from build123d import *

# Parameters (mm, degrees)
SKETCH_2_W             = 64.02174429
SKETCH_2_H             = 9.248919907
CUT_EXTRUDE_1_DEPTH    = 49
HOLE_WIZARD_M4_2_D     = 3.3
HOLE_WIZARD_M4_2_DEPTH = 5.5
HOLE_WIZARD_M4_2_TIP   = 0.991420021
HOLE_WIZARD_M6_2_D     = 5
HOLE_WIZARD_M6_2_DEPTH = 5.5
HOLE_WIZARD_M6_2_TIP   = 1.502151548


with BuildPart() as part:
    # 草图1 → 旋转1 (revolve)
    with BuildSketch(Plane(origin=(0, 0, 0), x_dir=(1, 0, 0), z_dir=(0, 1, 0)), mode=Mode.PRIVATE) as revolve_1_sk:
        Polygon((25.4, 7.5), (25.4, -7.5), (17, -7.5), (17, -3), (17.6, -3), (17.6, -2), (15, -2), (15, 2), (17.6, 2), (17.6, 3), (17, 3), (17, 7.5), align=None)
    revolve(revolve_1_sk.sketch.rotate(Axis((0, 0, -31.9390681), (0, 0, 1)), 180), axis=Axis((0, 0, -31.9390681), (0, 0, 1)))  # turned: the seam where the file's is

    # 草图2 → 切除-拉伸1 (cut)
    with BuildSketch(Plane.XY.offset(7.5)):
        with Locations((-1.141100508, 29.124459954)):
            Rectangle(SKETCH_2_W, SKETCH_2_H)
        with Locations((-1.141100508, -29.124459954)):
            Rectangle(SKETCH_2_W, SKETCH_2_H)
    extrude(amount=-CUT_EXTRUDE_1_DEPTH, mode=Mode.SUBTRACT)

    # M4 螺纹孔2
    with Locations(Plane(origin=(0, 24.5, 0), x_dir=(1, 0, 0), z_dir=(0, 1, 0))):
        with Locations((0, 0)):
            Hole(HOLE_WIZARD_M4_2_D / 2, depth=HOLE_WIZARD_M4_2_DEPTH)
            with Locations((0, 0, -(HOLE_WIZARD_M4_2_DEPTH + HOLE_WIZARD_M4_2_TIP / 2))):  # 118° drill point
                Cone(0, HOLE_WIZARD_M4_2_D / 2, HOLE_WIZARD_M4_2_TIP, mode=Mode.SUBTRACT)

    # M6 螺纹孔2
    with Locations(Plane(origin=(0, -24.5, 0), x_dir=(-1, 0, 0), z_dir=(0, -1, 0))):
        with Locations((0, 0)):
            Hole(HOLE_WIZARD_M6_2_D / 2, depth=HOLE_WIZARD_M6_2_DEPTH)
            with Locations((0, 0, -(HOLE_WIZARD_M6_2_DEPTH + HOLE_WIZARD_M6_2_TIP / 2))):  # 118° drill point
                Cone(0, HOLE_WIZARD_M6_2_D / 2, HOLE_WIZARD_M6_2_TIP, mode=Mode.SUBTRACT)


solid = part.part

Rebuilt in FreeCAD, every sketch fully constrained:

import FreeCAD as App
import Part
import Sketcher

V = App.Vector
Q = App.Units.Quantity


def add_polygon(sketch, points):
    """Adds a closed chain of lines whose ends are joined by coincident constraints."""
    first, n = sketch.GeometryCount, len(points)
    for a, b in zip(points, points[1:] + points[:1]):
        sketch.addGeometry(Part.LineSegment(App.Vector(*a, 0), App.Vector(*b, 0)), False)
    for i in range(n):
        sketch.addConstraint(Sketcher.Constraint("Coincident", first + i, 2, first + (i + 1) % n, 1))

doc = App.newDocument("Part")
params = doc.addObject("Spreadsheet::Sheet", "Params")
for row, (alias, value) in enumerate([
    ("sketch1_height", "15 mm"),
    ("sketch1_height2", "1 mm"),
    ("sketch1_height3", "4 mm"),
    ("sketch1_width", "8.4 mm"),
    ("sketch1_width2", "0.6 mm"),
    ("revolution_angle", "360 deg"),
    ("pocket1_length", "49 mm"),
    ("sketch3_diameter", "3.3 mm"),
    ("hole_diameter", "3.3 mm"),
    ("hole_depth", "5.5 mm"),
    ("sketch4_diameter", "5 mm"),
    ("hole2_diameter", "5 mm"),
    ("hole2_depth", "5.5 mm"),
], start=1):
    params.set(f"A{row}", alias)
    params.set(f"B{row}", "=" + value)
    params.setAlias(f"B{row}", alias)

body = doc.addObject("PartDesign::Body", "Body")

sketch1 = body.newObject("Sketcher::SketchObject", "Sketch")
sketch1.AttachmentSupport = (doc.getObject("XZ_Plane"), [""])
sketch1.MapMode = "FlatFace"
add_polygon(sketch1, [(25.4, 7.5), (25.4, -7.5), (17, -7.5), (17, -3), (17.6, -3), (17.6, -2), (15, -2), (15, 2), (17.6, 2), (17.6, 3), (17, 3), (17, 7.5)])
sketch1.addConstraint(Sketcher.Constraint("Vertical", 0))
sketch1.addConstraint(Sketcher.Constraint("Horizontal", 1))
sketch1.addConstraint(Sketcher.Constraint("Vertical", 2))
sketch1.addConstraint(Sketcher.Constraint("Horizontal", 3))
sketch1.addConstraint(Sketcher.Constraint("Vertical", 4))
sketch1.addConstraint(Sketcher.Constraint("Horizontal", 5))
sketch1.addConstraint(Sketcher.Constraint("Vertical", 6))
sketch1.addConstraint(Sketcher.Constraint("Horizontal", 7))
sketch1.addConstraint(Sketcher.Constraint("Vertical", 8))
sketch1.addConstraint(Sketcher.Constraint("Horizontal", 9))
sketch1.addConstraint(Sketcher.Constraint("Vertical", 10))
sketch1.addConstraint(Sketcher.Constraint("Horizontal", 11))
sketch1.addConstraint(Sketcher.Constraint("Symmetric", 4, 2, 7, 2, -1))
sketch1.addConstraint(Sketcher.Constraint("Symmetric", 2, 2, 9, 2, -1))
sketch1.addConstraint(Sketcher.Constraint("Equal", 2, 10))
sketch1.addConstraint(Sketcher.Constraint("DistanceY", 0, 2, 0, 1, Q("15 mm")))
sketch1.addConstraint(Sketcher.Constraint("DistanceY", 4, 1, 4, 2, Q("1 mm")))
sketch1.addConstraint(Sketcher.Constraint("DistanceY", 6, 1, 6, 2, Q("4 mm")))
sketch1.addConstraint(Sketcher.Constraint("DistanceX", 1, 2, 1, 1, Q("8.4 mm")))
sketch1.addConstraint(Sketcher.Constraint("DistanceX", 3, 1, 3, 2, Q("0.6 mm")))
sketch1.addConstraint(Sketcher.Constraint("DistanceX", 5, 2, 5, 1, Q("2.6 mm")))
sketch1.addConstraint(Sketcher.Constraint("DistanceX", -1, 1, 1, 2, Q("17 mm")))
sketch1.setExpression("Constraints[27]", "Params.sketch1_height")
sketch1.setExpression("Constraints[28]", "Params.sketch1_height2")
sketch1.setExpression("Constraints[29]", "Params.sketch1_height3")
sketch1.setExpression("Constraints[30]", "Params.sketch1_width")
sketch1.setExpression("Constraints[31]", "Params.sketch1_width2")
revolution = body.newObject("PartDesign::Revolution", "Revolution")
revolution.Profile = sketch1
revolution.ReferenceAxis = (sketch1, ["V_Axis"])
revolution.setExpression("Angle", "Params.revolution_angle")

sketch2 = body.newObject("Sketcher::SketchObject", "Sketch001")
sketch2.AttachmentSupport = (doc.getObject("XY_Plane"), [""])
sketch2.MapMode = "FlatFace"
sketch2.AttachmentOffset = App.Placement(V(0, 0, 7.5), App.Rotation())
add_polygon(sketch2, [(-33.151973, 33.74892), (-33.151973, 24.5), (30.869772, 24.5), (30.869772, 33.74892)])
add_polygon(sketch2, [(-33.151973, -24.5), (-33.151973, -33.74892), (30.869772, -33.74892), (30.869772, -24.5)])
sketch2.addConstraint(Sketcher.Constraint("Vertical", 0))
sketch2.addConstraint(Sketcher.Constraint("Horizontal", 1))
sketch2.addConstraint(Sketcher.Constraint("Vertical", 2))
sketch2.addConstraint(Sketcher.Constraint("Horizontal", 3))
sketch2.addConstraint(Sketcher.Constraint("Vertical", 4))
sketch2.addConstraint(Sketcher.Constraint("Horizontal", 5))
sketch2.addConstraint(Sketcher.Constraint("Vertical", 6))
sketch2.addConstraint(Sketcher.Constraint("Horizontal", 7))
sketch2.addConstraint(Sketcher.Constraint("Symmetric", 3, 2, 4, 2, -1))
sketch2.addConstraint(Sketcher.Constraint("Symmetric", 1, 2, 6, 2, -1))
sketch2.addConstraint(Sketcher.Constraint("DistanceY", 6, 2, 1, 2, Q("49 mm")))
sketch2.addConstraint(Sketcher.Constraint("DistanceY", 0, 2, 0, 1, Q("9.24892 mm")))
sketch2.addConstraint(Sketcher.Constraint("DistanceX", 1, 1, 1, 2, Q("64.021744 mm")))
sketch2.addConstraint(Sketcher.Constraint("DistanceX", -1, 1, 1, 2, Q("30.869772 mm")))
pocket1 = body.newObject("PartDesign::Pocket", "Pocket")
pocket1.Profile = sketch2
pocket1.setExpression("Length", "Params.pocket1_length")

sketch3 = body.newObject("Sketcher::SketchObject", "Sketch002")
sketch3.AttachmentSupport = (doc.getObject("XZ_Plane"), [""])
sketch3.MapMode = "FlatFace"
sketch3.AttachmentOffset = App.Placement(V(0, 0, -24.5), App.Rotation())
sketch3.addGeometry(Part.Circle(V(0, 0, 0), V(0, 0, 1), 1.65), False)
sketch3.addConstraint(Sketcher.Constraint("Coincident", 0, 3, -1, 1))
sketch3.addConstraint(Sketcher.Constraint("Diameter", 0, Q("3.3 mm")))
sketch3.setExpression("Constraints[1]", "Params.sketch3_diameter")
doc.recompute()
hole = body.newObject("PartDesign::Hole", "Hole")
hole.Profile = sketch3
hole.ThreadType = "None"
hole.setExpression("Diameter", "Params.hole_diameter")
hole.DepthType = "Dimension"
hole.setExpression("Depth", "Params.hole_depth")
hole.DrillPoint = "Angled"
hole.DrillPointAngle = 118
hole.Reversed = True

sketch4 = body.newObject("Sketcher::SketchObject", "Sketch003")
sketch4.AttachmentSupport = (doc.getObject("XZ_Plane"), [""])
sketch4.MapMode = "FlatFace"
sketch4.AttachmentOffset = App.Placement(V(0, 0, 24.5), App.Rotation())
sketch4.addGeometry(Part.Circle(V(0, 0, 0), V(0, 0, 1), 2.5), False)
sketch4.addConstraint(Sketcher.Constraint("Coincident", 0, 3, -1, 1))
sketch4.addConstraint(Sketcher.Constraint("Diameter", 0, Q("5 mm")))
sketch4.setExpression("Constraints[1]", "Params.sketch4_diameter")
doc.recompute()
hole2 = body.newObject("PartDesign::Hole", "Hole001")
hole2.Profile = sketch4
hole2.ThreadType = "None"
hole2.setExpression("Diameter", "Params.hole2_diameter")
hole2.DepthType = "Dimension"
hole2.setExpression("Depth", "Params.hole2_depth")
hole2.DrillPoint = "Angled"
hole2.DrillPointAngle = 118

doc.recompute()
